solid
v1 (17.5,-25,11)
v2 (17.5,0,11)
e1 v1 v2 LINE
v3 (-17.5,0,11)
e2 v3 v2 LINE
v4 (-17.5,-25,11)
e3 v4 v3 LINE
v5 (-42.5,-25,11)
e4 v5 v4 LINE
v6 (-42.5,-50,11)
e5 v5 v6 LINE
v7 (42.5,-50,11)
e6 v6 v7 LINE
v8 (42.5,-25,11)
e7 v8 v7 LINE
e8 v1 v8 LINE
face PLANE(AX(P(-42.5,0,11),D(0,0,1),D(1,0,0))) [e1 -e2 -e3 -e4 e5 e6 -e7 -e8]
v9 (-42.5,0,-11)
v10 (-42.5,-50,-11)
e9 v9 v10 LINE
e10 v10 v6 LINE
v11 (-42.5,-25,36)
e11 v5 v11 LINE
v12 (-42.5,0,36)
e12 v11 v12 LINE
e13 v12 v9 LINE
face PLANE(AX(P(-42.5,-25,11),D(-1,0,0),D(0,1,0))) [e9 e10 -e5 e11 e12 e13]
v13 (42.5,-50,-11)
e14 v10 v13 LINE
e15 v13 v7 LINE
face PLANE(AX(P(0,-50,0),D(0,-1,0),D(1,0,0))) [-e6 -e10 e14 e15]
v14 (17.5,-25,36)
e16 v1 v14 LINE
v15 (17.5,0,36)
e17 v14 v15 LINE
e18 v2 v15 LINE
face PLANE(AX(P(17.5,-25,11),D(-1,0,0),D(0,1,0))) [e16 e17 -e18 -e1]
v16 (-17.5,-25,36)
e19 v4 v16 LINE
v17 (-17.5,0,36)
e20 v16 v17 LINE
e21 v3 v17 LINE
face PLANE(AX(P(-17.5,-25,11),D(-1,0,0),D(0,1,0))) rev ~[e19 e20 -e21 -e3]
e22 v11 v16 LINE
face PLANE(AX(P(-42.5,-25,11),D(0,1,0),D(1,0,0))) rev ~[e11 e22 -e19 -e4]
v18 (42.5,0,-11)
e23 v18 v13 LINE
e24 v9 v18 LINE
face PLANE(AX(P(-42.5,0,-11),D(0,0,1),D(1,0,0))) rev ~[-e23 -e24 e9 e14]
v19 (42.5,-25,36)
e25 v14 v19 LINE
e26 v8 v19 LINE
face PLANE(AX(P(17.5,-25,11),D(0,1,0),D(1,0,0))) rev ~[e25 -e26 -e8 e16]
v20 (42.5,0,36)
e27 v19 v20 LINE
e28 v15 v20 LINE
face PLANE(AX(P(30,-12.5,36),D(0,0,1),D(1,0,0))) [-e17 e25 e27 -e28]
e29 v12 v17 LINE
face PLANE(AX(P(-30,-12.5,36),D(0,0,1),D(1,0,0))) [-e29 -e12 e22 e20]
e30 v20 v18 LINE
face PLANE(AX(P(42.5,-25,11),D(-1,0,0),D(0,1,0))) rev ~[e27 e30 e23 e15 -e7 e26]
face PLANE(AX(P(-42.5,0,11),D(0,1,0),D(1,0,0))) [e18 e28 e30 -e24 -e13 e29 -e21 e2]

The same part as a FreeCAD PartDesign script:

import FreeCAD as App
import Part
import Sketcher
from FreeCAD import Vector


def add_polygon(sketch, points):
    """Adds a closed chain of lines whose ends are joined by coincident constraints."""
    first, n = sketch.GeometryCount, len(points)
    for a, b in zip(points, points[1:] + points[:1]):
        sketch.addGeometry(Part.LineSegment(App.Vector(*a, 0), App.Vector(*b, 0)), False)
    for i in range(n):
        sketch.addConstraint(Sketcher.Constraint("Coincident", first + i, 2, first + (i + 1) % n, 1))

doc = App.newDocument("Part")
body = doc.addObject("PartDesign::Body", "Body")

# Sketch on XZ plane
sketch1 = body.newObject("Sketcher::SketchObject", "Sketch")
sketch1.AttachmentSupport = (doc.getObject("XZ_Plane"), [""])
sketch1.MapMode = "FlatFace"
add_polygon(sketch1, [(-42, 11), (-42, -11), (42, -11), (42, 11)])  # lines 0-3
sketch1.addConstraint([
    Sketcher.Constraint("Vertical", 0),
    Sketcher.Constraint("Horizontal", 1),
    Sketcher.Constraint("Vertical", 2),
    Sketcher.Constraint("Horizontal", 3),
    Sketcher.Constraint("Symmetric", 0, 2, 2, 2, -1, 1),
    Sketcher.Constraint("DistanceX", 1, 1, 1, 2, 85.0),
    Sketcher.Constraint("DistanceY", 0, 2, 0, 1, 22.0),
])
pad1 = body.newObject("PartDesign::Pad", "Pad")
pad1.Profile = sketch1
pad1.Length = 50

# Sketch on XY plane
sketch2 = body.newObject("Sketcher::SketchObject", "Sketch001")
sketch2.AttachmentSupport = (doc.getObject("XY_Plane"), [""])
sketch2.MapMode = "FlatFace"
sketch2.AttachmentOffset = App.Placement(Vector(0, 0, 11), App.Rotation())
add_polygon(sketch2, [(18, 0), (18, -25), (42, -25), (42, 0)])  # lines 0-3
sketch2.addConstraint([
    Sketcher.Constraint("Vertical", 0),
    Sketcher.Constraint("Horizontal", 1),
    Sketcher.Constraint("Vertical", 2),
    Sketcher.Constraint("Horizontal", 3),
    Sketcher.Constraint("PointOnObject", 2, 2, -1),
    Sketcher.Constraint("Equal", 3, 0),
    Sketcher.Constraint("DistanceX", 1, 1, 1, 2, 25.0),
    Sketcher.Constraint("DistanceX", -1, 1, 0, 2, 17.5),
])
pad2 = body.newObject("PartDesign::Pad", "Pad001")
pad2.Profile = sketch2
pad2.Length = 25

# Sketch on XY plane
sketch3 = body.newObject("Sketcher::SketchObject", "Sketch002")
sketch3.AttachmentSupport = (doc.getObject("XY_Plane"), [""])
sketch3.MapMode = "FlatFace"
sketch3.AttachmentOffset = App.Placement(Vector(0, 0, 11), App.Rotation())
add_polygon(sketch3, [(-42, 0), (-42, -25), (-18, -25), (-18, 0)])  # lines 0-3
sketch3.addConstraint([
    Sketcher.Constraint("Vertical", 0),
    Sketcher.Constraint("Horizontal", 1),
    Sketcher.Constraint("Vertical", 2),
    Sketcher.Constraint("Horizontal", 3),
    Sketcher.Constraint("PointOnObject", 2, 2, -1),
    Sketcher.Constraint("Equal", 3, 0),
    Sketcher.Constraint("DistanceX", 1, 1, 1, 2, 25.0),
    Sketcher.Constraint("DistanceX", 0, 2, -1, 1, 42.5),
])
pad3 = body.newObject("PartDesign::Pad", "Pad002")
pad3.Profile = sketch3
pad3.Length = 25

doc.recompute()
